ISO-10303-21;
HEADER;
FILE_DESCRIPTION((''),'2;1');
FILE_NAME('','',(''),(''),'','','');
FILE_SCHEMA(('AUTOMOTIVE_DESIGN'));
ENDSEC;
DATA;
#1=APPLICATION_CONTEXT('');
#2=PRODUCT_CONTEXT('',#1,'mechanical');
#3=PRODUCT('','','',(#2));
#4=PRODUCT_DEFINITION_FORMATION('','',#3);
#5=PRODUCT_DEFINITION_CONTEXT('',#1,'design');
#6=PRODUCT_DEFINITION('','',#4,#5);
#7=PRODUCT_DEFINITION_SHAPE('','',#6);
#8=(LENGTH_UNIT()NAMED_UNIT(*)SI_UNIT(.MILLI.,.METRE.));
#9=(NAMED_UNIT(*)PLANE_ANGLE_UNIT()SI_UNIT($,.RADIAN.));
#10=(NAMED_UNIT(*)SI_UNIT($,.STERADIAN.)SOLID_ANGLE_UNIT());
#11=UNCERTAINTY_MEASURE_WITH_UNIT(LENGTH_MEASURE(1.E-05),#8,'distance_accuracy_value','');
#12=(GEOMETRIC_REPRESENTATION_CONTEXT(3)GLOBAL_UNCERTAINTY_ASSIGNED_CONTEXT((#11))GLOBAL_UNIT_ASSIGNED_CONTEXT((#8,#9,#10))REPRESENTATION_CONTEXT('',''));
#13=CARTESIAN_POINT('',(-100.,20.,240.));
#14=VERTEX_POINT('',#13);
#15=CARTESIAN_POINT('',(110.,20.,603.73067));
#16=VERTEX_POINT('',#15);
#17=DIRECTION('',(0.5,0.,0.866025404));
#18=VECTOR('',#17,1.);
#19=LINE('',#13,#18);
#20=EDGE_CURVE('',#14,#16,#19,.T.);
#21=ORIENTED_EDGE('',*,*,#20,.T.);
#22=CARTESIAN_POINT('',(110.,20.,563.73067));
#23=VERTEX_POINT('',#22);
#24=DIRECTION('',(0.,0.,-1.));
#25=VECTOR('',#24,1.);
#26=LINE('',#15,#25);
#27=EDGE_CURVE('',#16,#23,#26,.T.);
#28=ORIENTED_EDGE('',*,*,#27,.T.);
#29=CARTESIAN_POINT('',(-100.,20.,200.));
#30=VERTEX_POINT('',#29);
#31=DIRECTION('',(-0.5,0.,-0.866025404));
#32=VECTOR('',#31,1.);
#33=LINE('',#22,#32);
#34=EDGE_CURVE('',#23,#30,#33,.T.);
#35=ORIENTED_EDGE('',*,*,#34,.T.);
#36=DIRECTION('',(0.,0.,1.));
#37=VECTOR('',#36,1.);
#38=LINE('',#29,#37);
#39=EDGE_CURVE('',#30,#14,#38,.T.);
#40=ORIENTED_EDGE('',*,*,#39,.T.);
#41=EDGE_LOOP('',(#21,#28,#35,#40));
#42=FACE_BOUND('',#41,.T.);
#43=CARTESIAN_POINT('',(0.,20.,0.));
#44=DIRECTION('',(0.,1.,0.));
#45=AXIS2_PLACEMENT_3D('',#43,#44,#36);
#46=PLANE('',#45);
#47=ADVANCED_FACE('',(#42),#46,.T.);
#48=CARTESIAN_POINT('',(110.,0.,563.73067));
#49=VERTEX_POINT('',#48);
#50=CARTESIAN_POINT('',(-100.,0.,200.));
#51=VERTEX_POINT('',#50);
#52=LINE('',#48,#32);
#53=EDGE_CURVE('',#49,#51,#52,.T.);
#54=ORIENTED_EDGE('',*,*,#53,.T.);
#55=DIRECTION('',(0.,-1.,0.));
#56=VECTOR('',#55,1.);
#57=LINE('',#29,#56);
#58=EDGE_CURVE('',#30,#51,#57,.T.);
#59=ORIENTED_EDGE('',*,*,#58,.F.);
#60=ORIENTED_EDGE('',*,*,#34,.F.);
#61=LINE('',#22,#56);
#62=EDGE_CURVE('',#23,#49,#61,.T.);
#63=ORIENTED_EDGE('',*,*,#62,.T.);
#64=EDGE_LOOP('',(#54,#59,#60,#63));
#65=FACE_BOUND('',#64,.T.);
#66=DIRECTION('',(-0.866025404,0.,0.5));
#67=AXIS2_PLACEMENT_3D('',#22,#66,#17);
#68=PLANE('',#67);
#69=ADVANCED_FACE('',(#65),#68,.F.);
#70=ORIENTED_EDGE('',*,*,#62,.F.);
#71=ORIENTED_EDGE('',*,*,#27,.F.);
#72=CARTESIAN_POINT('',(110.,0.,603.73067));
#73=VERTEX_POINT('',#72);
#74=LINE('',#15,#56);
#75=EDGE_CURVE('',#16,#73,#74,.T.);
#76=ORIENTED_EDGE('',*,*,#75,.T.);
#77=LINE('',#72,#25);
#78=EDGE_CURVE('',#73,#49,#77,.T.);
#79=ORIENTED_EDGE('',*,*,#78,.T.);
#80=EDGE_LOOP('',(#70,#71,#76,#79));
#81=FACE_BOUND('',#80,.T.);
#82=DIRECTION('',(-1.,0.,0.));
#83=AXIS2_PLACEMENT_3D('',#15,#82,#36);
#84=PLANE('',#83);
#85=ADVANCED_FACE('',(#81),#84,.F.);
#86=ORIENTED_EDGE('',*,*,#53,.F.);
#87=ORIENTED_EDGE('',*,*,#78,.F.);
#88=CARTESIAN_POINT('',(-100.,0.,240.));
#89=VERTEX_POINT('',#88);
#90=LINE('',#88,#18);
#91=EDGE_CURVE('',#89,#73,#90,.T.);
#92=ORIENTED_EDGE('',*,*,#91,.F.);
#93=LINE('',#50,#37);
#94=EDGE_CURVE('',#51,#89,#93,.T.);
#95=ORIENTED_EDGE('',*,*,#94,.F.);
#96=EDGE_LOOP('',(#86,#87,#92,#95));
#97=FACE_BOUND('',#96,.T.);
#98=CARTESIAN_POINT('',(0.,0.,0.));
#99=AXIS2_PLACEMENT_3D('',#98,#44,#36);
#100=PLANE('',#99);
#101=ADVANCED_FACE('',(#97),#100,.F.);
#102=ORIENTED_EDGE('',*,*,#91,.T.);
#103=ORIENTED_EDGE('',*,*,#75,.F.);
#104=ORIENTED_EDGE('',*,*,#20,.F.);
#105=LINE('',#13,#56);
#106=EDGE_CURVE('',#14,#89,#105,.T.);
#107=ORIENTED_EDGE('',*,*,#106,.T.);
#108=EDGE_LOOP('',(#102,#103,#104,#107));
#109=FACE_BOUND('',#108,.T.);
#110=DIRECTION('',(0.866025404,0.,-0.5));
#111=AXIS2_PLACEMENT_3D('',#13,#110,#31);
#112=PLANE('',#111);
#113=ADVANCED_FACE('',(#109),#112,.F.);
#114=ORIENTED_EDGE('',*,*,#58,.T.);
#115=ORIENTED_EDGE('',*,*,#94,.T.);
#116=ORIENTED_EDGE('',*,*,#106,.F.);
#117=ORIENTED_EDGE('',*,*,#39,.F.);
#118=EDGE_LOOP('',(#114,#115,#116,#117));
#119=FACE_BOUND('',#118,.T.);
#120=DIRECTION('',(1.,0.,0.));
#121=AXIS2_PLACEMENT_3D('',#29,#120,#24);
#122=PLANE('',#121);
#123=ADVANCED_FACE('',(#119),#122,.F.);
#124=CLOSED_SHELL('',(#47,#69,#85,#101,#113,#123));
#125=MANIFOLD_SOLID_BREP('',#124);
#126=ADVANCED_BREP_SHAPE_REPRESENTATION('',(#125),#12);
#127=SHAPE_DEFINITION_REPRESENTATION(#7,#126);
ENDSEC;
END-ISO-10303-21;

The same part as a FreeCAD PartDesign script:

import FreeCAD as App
import Part
import Sketcher
Q = App.Units.Quantity

doc = App.newDocument("Part")
params = doc.addObject("Spreadsheet::Sheet", "Params")
for row, (alias, value) in enumerate([
    ("sketch1_height", "40 mm"),
    ("sketch1_length", "420 mm"),
    ("pad1_length", "20 mm"),
], start=1):
    params.set(f"A{row}", alias)
    params.set(f"B{row}", "=" + value)
    params.setAlias(f"B{row}", alias)

body = doc.addObject("PartDesign::Body", "Body")

sketch1 = body.newObject("Sketcher::SketchObject", "Sketch")
sketch1.AttachmentSupport = (doc.getObject("XZ_Plane"), [""])
sketch1.MapMode = "FlatFace"
sketch1.addGeometry(Part.LineSegment(App.Vector(110, 604, 0), App.Vector(110, 564, 0)), False)
sketch1.addGeometry(Part.LineSegment(App.Vector(110, 564, 0), App.Vector(-100, 200, 0)), False)
sketch1.addGeometry(Part.LineSegment(App.Vector(-100, 200, 0), App.Vector(-100, 240, 0)), False)
sketch1.addGeometry(Part.LineSegment(App.Vector(-100, 240, 0), App.Vector(110, 604, 0)), False)
sketch1.addConstraint(Sketcher.Constraint("Coincident", 0, 2, 1, 1))
sketch1.addConstraint(Sketcher.Constraint("Coincident", 1, 2, 2, 1))
sketch1.addConstraint(Sketcher.Constraint("Coincident", 2, 2, 3, 1))
sketch1.addConstraint(Sketcher.Constraint("Coincident", 3, 2, 0, 1))
sketch1.addConstraint(Sketcher.Constraint("Vertical", 0))
sketch1.addConstraint(Sketcher.Constraint("Vertical", 2))
sketch1.addConstraint(Sketcher.Constraint("Parallel", 1, 3))
sketch1.addConstraint(Sketcher.Constraint("DistanceY", 0, 2, 0, 1, Q("40 mm")))
sketch1.addConstraint(Sketcher.Constraint("Angle", 1, Q("-120 deg")))
sketch1.addConstraint(Sketcher.Constraint("Distance", 1, Q("420 mm")))
sketch1.addConstraint(Sketcher.Constraint("DistanceX", -1, 1, 0, 2, Q("110 mm")))
sketch1.addConstraint(Sketcher.Constraint("DistanceY", -1, 1, 1, 2, Q("200 mm")))
sketch1.setExpression("Constraints[7]", "Params.sketch1_height")
sketch1.setExpression("Constraints[9]", "Params.sketch1_length")
pad1 = body.newObject("PartDesign::Pad", "Pad")
pad1.Profile = sketch1
pad1.setExpression("Length", "Params.pad1_length")
pad1.Reversed = True

doc.recompute()
